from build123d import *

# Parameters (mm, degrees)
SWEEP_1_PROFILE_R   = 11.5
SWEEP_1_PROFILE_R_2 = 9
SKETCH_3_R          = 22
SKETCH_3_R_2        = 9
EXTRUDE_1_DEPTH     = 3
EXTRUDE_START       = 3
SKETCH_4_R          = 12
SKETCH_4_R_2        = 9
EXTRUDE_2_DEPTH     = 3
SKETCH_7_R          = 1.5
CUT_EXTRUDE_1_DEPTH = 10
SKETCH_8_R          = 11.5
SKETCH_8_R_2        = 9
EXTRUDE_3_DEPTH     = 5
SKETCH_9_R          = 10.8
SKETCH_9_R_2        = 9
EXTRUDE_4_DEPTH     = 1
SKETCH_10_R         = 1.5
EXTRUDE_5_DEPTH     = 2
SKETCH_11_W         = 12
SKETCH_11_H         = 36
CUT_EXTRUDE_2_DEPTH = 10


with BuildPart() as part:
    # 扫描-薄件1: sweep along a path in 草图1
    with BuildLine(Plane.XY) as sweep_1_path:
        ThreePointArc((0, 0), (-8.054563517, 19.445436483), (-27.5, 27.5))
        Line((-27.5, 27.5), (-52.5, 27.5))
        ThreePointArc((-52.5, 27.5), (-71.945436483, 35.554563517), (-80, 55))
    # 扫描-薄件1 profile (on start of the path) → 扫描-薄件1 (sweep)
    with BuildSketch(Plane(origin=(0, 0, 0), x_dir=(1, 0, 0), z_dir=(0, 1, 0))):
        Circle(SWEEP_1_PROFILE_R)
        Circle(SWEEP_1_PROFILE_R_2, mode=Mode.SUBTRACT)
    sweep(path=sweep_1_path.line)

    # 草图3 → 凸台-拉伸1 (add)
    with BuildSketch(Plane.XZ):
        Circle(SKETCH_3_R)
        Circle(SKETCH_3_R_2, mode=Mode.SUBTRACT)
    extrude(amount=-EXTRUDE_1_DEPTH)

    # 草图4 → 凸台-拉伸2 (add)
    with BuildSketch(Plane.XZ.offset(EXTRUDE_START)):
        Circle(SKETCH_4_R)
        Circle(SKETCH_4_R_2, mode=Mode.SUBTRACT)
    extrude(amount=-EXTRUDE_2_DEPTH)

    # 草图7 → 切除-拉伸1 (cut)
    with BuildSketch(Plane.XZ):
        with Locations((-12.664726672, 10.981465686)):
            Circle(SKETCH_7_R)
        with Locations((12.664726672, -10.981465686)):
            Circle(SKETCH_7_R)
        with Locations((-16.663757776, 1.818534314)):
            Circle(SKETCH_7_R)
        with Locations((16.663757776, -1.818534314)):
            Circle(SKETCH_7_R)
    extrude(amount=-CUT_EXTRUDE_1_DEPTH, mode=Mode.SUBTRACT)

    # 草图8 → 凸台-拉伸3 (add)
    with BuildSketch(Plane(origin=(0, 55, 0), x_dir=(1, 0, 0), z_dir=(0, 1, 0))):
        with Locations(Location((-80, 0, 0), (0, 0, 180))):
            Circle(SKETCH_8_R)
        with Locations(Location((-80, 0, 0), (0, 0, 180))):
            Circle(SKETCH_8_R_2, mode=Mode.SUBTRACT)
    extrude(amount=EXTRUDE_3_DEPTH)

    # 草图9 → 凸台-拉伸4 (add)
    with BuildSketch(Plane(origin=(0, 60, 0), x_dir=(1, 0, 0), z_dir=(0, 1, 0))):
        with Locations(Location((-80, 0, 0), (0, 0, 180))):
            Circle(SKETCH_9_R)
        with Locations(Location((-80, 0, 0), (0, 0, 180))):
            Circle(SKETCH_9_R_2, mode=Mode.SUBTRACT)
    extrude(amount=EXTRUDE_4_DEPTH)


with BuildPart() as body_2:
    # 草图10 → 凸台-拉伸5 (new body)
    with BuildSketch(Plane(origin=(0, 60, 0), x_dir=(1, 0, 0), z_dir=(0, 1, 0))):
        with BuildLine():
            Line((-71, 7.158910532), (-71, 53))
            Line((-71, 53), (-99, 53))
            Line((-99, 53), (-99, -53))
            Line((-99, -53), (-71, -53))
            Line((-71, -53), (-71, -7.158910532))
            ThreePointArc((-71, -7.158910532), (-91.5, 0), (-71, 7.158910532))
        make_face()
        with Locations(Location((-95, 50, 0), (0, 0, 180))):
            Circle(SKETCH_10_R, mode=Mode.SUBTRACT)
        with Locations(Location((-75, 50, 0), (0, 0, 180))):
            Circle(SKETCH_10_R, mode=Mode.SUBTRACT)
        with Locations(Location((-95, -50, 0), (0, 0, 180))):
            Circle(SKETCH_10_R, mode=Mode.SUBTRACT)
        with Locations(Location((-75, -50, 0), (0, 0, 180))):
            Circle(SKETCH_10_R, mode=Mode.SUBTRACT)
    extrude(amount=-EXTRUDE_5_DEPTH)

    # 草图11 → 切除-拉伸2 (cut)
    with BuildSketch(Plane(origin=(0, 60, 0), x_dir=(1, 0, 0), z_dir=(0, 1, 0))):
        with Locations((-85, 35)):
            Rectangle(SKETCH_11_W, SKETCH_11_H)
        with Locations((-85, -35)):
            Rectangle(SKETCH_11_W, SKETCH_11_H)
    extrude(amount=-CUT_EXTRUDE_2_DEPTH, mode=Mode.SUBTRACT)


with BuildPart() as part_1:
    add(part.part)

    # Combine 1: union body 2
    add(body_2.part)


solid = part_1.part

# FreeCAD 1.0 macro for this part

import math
import FreeCAD as App
import Part
import Sketcher
from FreeCAD import Vector
Q = App.Units.Quantity

doc = App.newDocument("Part")
body = doc.addObject("PartDesign::Body", "Body")

sketch1 = body.newObject("Sketcher::SketchObject", "Sketch")
sketch1.AttachmentSupport = (doc.getObject("XZ_Plane"), [""])
sketch1.MapMode = "FlatFace"
sketch1.addGeometry(Part.Circle(Vector(0, 0, 0), Vector(0, 0, 1), 12), False)
sketch1.addGeometry(Part.Circle(Vector(0, 0, 0), Vector(0, 0, 1), 9), False)
sketch1.addConstraint(Sketcher.Constraint("Coincident", 0, 3, -1, 1))
sketch1.addConstraint(Sketcher.Constraint("Coincident", 1, 3, -1, 1))
sketch1.addConstraint(Sketcher.Constraint("Diameter", 0, Q("23 mm")))
sketch1.addConstraint(Sketcher.Constraint("Diameter", 1, Q("18 mm")))

sketch2 = body.newObject("Sketcher::SketchObject", "Sketch001")
sketch2.AttachmentSupport = (doc.getObject("XY_Plane"), [""])
sketch2.MapMode = "FlatFace"
sketch2.addGeometry(Part.ArcOfCircle(Part.Circle(Vector(-27, 0, 0), Vector(0, 0, 1), 27), math.radians(0), math.radians(90)), False)
sketch2.addGeometry(Part.LineSegment(Vector(-28, 28, 0), Vector(-52, 28, 0)), False)
sketch2.addGeometry(Part.ArcOfCircle(Part.Circle(Vector(-53, 55, 0), Vector(0, 0, 1), 27), math.radians(180), math.radians(270)), False)
sketch2.addConstraint(Sketcher.Constraint("Tangent", 0, 2, 1, 1))
sketch2.addConstraint(Sketcher.Constraint("Tangent", 1, 2, 2, 2))
sketch2.addConstraint(Sketcher.Constraint("Horizontal", 1))
sketch2.addConstraint(Sketcher.Constraint("Coincident", 0, 1, -1, 1))
sketch2.addConstraint(Sketcher.Constraint("Equal", 0, 2))
sketch2.addConstraint(Sketcher.Constraint("PointOnObject", 0, 3, -1))
sketch2.addConstraint(Sketcher.Constraint("Radius", 0, Q("27.5 mm")))
sketch2.addConstraint(Sketcher.Constraint("DistanceX", 1, 2, 1, 1, Q("25 mm")))
sketch2.addConstraint(Sketcher.Constraint("DistanceY", -1, 1, 2, 1, Q("55 mm")))
doc.recompute()

additivepipe = body.newObject("PartDesign::AdditivePipe", "AdditivePipe")
additivepipe.Profile = sketch1
additivepipe.Spine = (sketch2, ["Edge1", "Edge2", "Edge3"])

sketch3 = body.newObject("Sketcher::SketchObject", "Sketch002")
sketch3.AttachmentSupport = (doc.getObject("XZ_Plane"), [""])
sketch3.MapMode = "FlatFace"
sketch3.addGeometry(Part.Circle(Vector(0, 0, 0), Vector(0, 0, 1), 22), False)
sketch3.addGeometry(Part.Circle(Vector(0, 0, 0), Vector(0, 0, 1), 9), False)
sketch3.addConstraint(Sketcher.Constraint("Coincident", 0, 3, -1, 1))
sketch3.addConstraint(Sketcher.Constraint("Coincident", 1, 3, -1, 1))
sketch3.addConstraint(Sketcher.Constraint("Diameter", 0, Q("44 mm")))
sketch3.addConstraint(Sketcher.Constraint("Diameter", 1, Q("18 mm")))
pad1 = body.newObject("PartDesign::Pad", "Pad")
pad1.Profile = sketch3
pad1.Length = 3
pad1.Reversed = True

sketch4 = body.newObject("Sketcher::SketchObject", "Sketch003")
sketch4.AttachmentSupport = (doc.getObject("XZ_Plane"), [""])
sketch4.MapMode = "FlatFace"
sketch4.AttachmentOffset = App.Placement(Vector(0, 0, 3), App.Rotation())
sketch4.addGeometry(Part.Circle(Vector(0, 0, 0), Vector(0, 0, 1), 12), False)
sketch4.addGeometry(Part.Circle(Vector(0, 0, 0), Vector(0, 0, 1), 9), False)
sketch4.addConstraint(Sketcher.Constraint("Coincident", 0, 3, -1, 1))
sketch4.addConstraint(Sketcher.Constraint("Coincident", 1, 3, -1, 1))
sketch4.addConstraint(Sketcher.Constraint("Diameter", 0, Q("24 mm")))
sketch4.addConstraint(Sketcher.Constraint("Diameter", 1, Q("18 mm")))
pad2 = body.newObject("PartDesign::Pad", "Pad001")
pad2.Profile = sketch4
pad2.Length = 3
pad2.Reversed = True

sketch5 = body.newObject("Sketcher::SketchObject", "Sketch004")
sketch5.AttachmentSupport = (doc.getObject("XZ_Plane"), [""])
sketch5.MapMode = "FlatFace"
sketch5.addGeometry(Part.Circle(Vector(-12.7, 11, 0), Vector(0, 0, 1), 1.5), False)
sketch5.addGeometry(Part.Circle(Vector(12.7, -11, 0), Vector(0, 0, 1), 1.5), False)
sketch5.addGeometry(Part.Circle(Vector(-16.7, 1.8, 0), Vector(0, 0, 1), 1.5), False)
sketch5.addGeometry(Part.Circle(Vector(16.7, -1.8, 0), Vector(0, 0, 1), 1.5), False)
sketch5.addConstraint(Sketcher.Constraint("Equal", 0, 1))
sketch5.addConstraint(Sketcher.Constraint("Equal", 1, 2))
sketch5.addConstraint(Sketcher.Constraint("Equal", 2, 3))
sketch5.addConstraint(Sketcher.Constraint("Symmetric", 0, 3, 1, 3, -1, 1))
sketch5.addConstraint(Sketcher.Constraint("Symmetric", 2, 3, 3, 3, -1, 1))
sketch5.addConstraint(Sketcher.Constraint("Diameter", 0, Q("3 mm")))
sketch5.addConstraint(Sketcher.Constraint("DistanceY", 1, 3, 2, 3, Q("12.8 mm")))
sketch5.addConstraint(Sketcher.Constraint("DistanceY", 1, 3, 0, 3, Q("21.962931 mm")))
sketch5.addConstraint(Sketcher.Constraint("DistanceX", 2, 3, 0, 3, Q("3.999031 mm")))
sketch5.addConstraint(Sketcher.Constraint("DistanceX", 0, 3, -1, 1, Q("12.664727 mm")))
pocket1 = body.newObject("PartDesign::Pocket", "Pocket")
pocket1.Profile = sketch5
pocket1.Length = 10

sketch6 = body.newObject("Sketcher::SketchObject", "Sketch005")
sketch6.AttachmentSupport = (doc.getObject("XZ_Plane"), [""])
sketch6.MapMode = "FlatFace"
sketch6.AttachmentOffset = App.Placement(Vector(0, 0, -55), App.Rotation())
sketch6.addGeometry(Part.Circle(Vector(-80, 0, 0), Vector(0, 0, 1), 12), False)
sketch6.addGeometry(Part.Circle(Vector(-80, 0, 0), Vector(0, 0, 1), 9), False)
sketch6.addConstraint(Sketcher.Constraint("Coincident", 1, 3, 0, 3))
sketch6.addConstraint(Sketcher.Constraint("PointOnObject", 0, 3, -1))
sketch6.addConstraint(Sketcher.Constraint("Diameter", 0, Q("23 mm")))
sketch6.addConstraint(Sketcher.Constraint("Diameter", 1, Q("18 mm")))
sketch6.addConstraint(Sketcher.Constraint("DistanceX", 0, 3, -1, 1, Q("80 mm")))
pad3 = body.newObject("PartDesign::Pad", "Pad002")
pad3.Profile = sketch6
pad3.Length = 5
pad3.Reversed = True

sketch7 = body.newObject("Sketcher::SketchObject", "Sketch006")
sketch7.AttachmentSupport = (doc.getObject("XZ_Plane"), [""])
sketch7.MapMode = "FlatFace"
sketch7.AttachmentOffset = App.Placement(Vector(0, 0, -60), App.Rotation())
sketch7.addGeometry(Part.Circle(Vector(-80, 0, 0), Vector(0, 0, 1), 11), False)
sketch7.addGeometry(Part.Circle(Vector(-80, 0, 0), Vector(0, 0, 1), 9), False)
sketch7.addConstraint(Sketcher.Constraint("Coincident", 1, 3, 0, 3))
sketch7.addConstraint(Sketcher.Constraint("PointOnObject", 0, 3, -1))
sketch7.addConstraint(Sketcher.Constraint("Diameter", 1, Q("18 mm")))
sketch7.addConstraint(Sketcher.Constraint("Diameter", 0, Q("21.6 mm")))
sketch7.addConstraint(Sketcher.Constraint("DistanceX", 0, 3, -1, 1, Q("80 mm")))
pad4 = body.newObject("PartDesign::Pad", "Pad003")
pad4.Profile = sketch7
pad4.Length = 1
pad4.Reversed = True
body2 = doc.addObject("PartDesign::Body", "Body001")

sketch8 = body2.newObject("Sketcher::SketchObject", "Sketch007")
sketch8.AttachmentSupport = (doc.getObject("XZ_Plane001"), [""])
sketch8.MapMode = "FlatFace"
sketch8.AttachmentOffset = App.Placement(Vector(0, 0, -60), App.Rotation())
sketch8.addGeometry(Part.LineSegment(Vector(-71, -7.2, 0), Vector(-71, -53, 0)), False)
sketch8.addGeometry(Part.LineSegment(Vector(-71, -53, 0), Vector(-99, -53, 0)), False)
sketch8.addGeometry(Part.LineSegment(Vector(-99, -53, 0), Vector(-99, 53, 0)), False)
sketch8.addGeometry(Part.LineSegment(Vector(-99, 53, 0), Vector(-71, 53, 0)), False)
sketch8.addGeometry(Part.LineSegment(Vector(-71, 53, 0), Vector(-71, 7.2, 0)), False)
sketch8.addGeometry(Part.ArcOfCircle(Part.Circle(Vector(-80, 0, 0), Vector(0, 0, 1), 11.5), math.radians(38), math.radians(322)), False)
sketch8.addGeometry(Part.Circle(Vector(-95, 50, 0), Vector(0, 0, 1), 1.5), False)
sketch8.addGeometry(Part.Circle(Vector(-75, 50, 0), Vector(0, 0, 1), 1.5), False)
sketch8.addGeometry(Part.Circle(Vector(-95, -50, 0), Vector(0, 0, 1), 1.5), False)
sketch8.addGeometry(Part.Circle(Vector(-75, -50, 0), Vector(0, 0, 1), 1.5), False)
sketch8.addConstraint(Sketcher.Constraint("Coincident", 0, 2, 1, 1))
sketch8.addConstraint(Sketcher.Constraint("Coincident", 1, 2, 2, 1))
sketch8.addConstraint(Sketcher.Constraint("Coincident", 2, 2, 3, 1))
sketch8.addConstraint(Sketcher.Constraint("Coincident", 3, 2, 4, 1))
sketch8.addConstraint(Sketcher.Constraint("Coincident", 4, 2, 5, 1))
sketch8.addConstraint(Sketcher.Constraint("Coincident", 5, 2, 0, 1))
sketch8.addConstraint(Sketcher.Constraint("Vertical", 0))
sketch8.addConstraint(Sketcher.Constraint("Horizontal", 1))
sketch8.addConstraint(Sketcher.Constraint("Vertical", 2))
sketch8.addConstraint(Sketcher.Constraint("Horizontal", 3))
sketch8.addConstraint(Sketcher.Constraint("Vertical", 4))
sketch8.addConstraint(Sketcher.Constraint("Equal", 6, 7))
sketch8.addConstraint(Sketcher.Constraint("Equal", 7, 8))
sketch8.addConstraint(Sketcher.Constraint("Equal", 8, 9))
sketch8.addConstraint(Sketcher.Constraint("Symmetric", 6, 3, 8, 3, -1))
sketch8.addConstraint(Sketcher.Constraint("Symmetric", 7, 3, 9, 3, -1))
sketch8.addConstraint(Sketcher.Constraint("Symmetric", 0, 2, 3, 2, -1))
sketch8.addConstraint(Sketcher.Constraint("PointOnObject", 5, 3, -1))
sketch8.addConstraint(Sketcher.Constraint("Horizontal", 6, 3, 7, 3))
sketch8.addConstraint(Sketcher.Constraint("Diameter", 6, Q("3 mm")))
sketch8.addConstraint(Sketcher.Constraint("Radius", 5, Q("11.5 mm")))
sketch8.addConstraint(Sketcher.Constraint("DistanceX", 1, 2, 1, 1, Q("28 mm")))
sketch8.addConstraint(Sketcher.Constraint("DistanceY", 2, 1, 2, 2, Q("106 mm")))
sketch8.addConstraint(Sketcher.Constraint("DistanceX", 5, 3, -1, 1, Q("80 mm")))
sketch8.addConstraint(Sketcher.Constraint("DistanceX", 6, 3, -1, 1, Q("95 mm")))
sketch8.addConstraint(Sketcher.Constraint("DistanceY", -1, 1, 6, 3, Q("50 mm")))
sketch8.addConstraint(Sketcher.Constraint("DistanceX", 7, 3, -1, 1, Q("75 mm")))
sketch8.addConstraint(Sketcher.Constraint("DistanceX", 0, 2, -1, 1, Q("71 mm")))
pad5 = body2.newObject("PartDesign::Pad", "Pad004")
pad5.Profile = sketch8
pad5.Length = 2

sketch9 = body2.newObject("Sketcher::SketchObject", "Sketch008")
sketch9.AttachmentSupport = (doc.getObject("XZ_Plane001"), [""])
sketch9.MapMode = "FlatFace"
sketch9.AttachmentOffset = App.Placement(Vector(0, 0, -60), App.Rotation())
sketch9.addGeometry(Part.LineSegment(Vector(-91, -53, 0), Vector(-91, -17, 0)), False)
sketch9.addGeometry(Part.LineSegment(Vector(-91, -17, 0), Vector(-79, -17, 0)), False)
sketch9.addGeometry(Part.LineSegment(Vector(-79, -17, 0), Vector(-79, -53, 0)), False)
sketch9.addGeometry(Part.LineSegment(Vector(-79, -53, 0), Vector(-91, -53, 0)), False)
sketch9.addGeometry(Part.LineSegment(Vector(-91, 17, 0), Vector(-91, 53, 0)), False)
sketch9.addGeometry(Part.LineSegment(Vector(-91, 53, 0), Vector(-79, 53, 0)), False)
sketch9.addGeometry(Part.LineSegment(Vector(-79, 53, 0), Vector(-79, 17, 0)), False)
sketch9.addGeometry(Part.LineSegment(Vector(-79, 17, 0), Vector(-91, 17, 0)), False)
sketch9.addConstraint(Sketcher.Constraint("Coincident", 0, 2, 1, 1))
sketch9.addConstraint(Sketcher.Constraint("Coincident", 1, 2, 2, 1))
sketch9.addConstraint(Sketcher.Constraint("Coincident", 2, 2, 3, 1))
sketch9.addConstraint(Sketcher.Constraint("Coincident", 3, 2, 0, 1))
sketch9.addConstraint(Sketcher.Constraint("Coincident", 4, 2, 5, 1))
sketch9.addConstraint(Sketcher.Constraint("Coincident", 5, 2, 6, 1))
sketch9.addConstraint(Sketcher.Constraint("Coincident", 6, 2, 7, 1))
sketch9.addConstraint(Sketcher.Constraint("Coincident", 7, 2, 4, 1))
sketch9.addConstraint(Sketcher.Constraint("Vertical", 0))
sketch9.addConstraint(Sketcher.Constraint("Horizontal", 1))
sketch9.addConstraint(Sketcher.Constraint("Vertical", 2))
sketch9.addConstraint(Sketcher.Constraint("Horizontal", 3))
sketch9.addConstraint(Sketcher.Constraint("Vertical", 4))
sketch9.addConstraint(Sketcher.Constraint("Horizontal", 5))
sketch9.addConstraint(Sketcher.Constraint("Vertical", 6))
sketch9.addConstraint(Sketcher.Constraint("Horizontal", 7))
sketch9.addConstraint(Sketcher.Constraint("Symmetric", 3, 2, 4, 2, -1))
sketch9.addConstraint(Sketcher.Constraint("Symmetric", 1, 2, 6, 2, -1))
sketch9.addConstraint(Sketcher.Constraint("DistanceX", 1, 1, 1, 2, Q("12 mm")))
sketch9.addConstraint(Sketcher.Constraint("DistanceY", 0, 1, 0, 2, Q("36 mm")))
sketch9.addConstraint(Sketcher.Constraint("DistanceX", 0, 2, -1, 1, Q("91 mm")))
sketch9.addConstraint(Sketcher.Constraint("DistanceY", 0, 2, -1, 1, Q("17 mm")))
pocket2 = body2.newObject("PartDesign::Pocket", "Pocket001")
pocket2.Profile = sketch9
pocket2.Length = 10
pocket2.Reversed = True
doc.recompute()

boolean = body.newObject("PartDesign::Boolean", "Boolean")
boolean.Type = "Fuse"
boolean.addObjects([body2])

doc.recompute()
